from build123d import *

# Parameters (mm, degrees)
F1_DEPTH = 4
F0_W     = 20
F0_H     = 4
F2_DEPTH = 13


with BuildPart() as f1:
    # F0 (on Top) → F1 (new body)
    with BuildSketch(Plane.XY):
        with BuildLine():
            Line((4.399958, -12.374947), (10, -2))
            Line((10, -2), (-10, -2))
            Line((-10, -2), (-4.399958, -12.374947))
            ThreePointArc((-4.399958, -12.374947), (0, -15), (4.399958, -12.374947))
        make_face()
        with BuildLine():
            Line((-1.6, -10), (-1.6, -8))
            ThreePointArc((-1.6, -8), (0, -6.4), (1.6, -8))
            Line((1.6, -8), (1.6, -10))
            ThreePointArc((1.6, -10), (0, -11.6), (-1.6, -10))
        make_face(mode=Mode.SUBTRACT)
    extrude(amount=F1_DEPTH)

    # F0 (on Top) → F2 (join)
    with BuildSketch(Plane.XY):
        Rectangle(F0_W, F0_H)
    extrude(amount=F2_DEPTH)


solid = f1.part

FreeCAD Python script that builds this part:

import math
import FreeCAD as App
import Part
import Sketcher
from FreeCAD import Vector
Q = App.Units.Quantity

doc = App.newDocument("Part")
body = doc.addObject("PartDesign::Body", "Body")

sketch1 = body.newObject("Sketcher::SketchObject", "Sketch")
sketch1.AttachmentSupport = (doc.getObject("XY_Plane"), [""])
sketch1.MapMode = "FlatFace"
sketch1.addGeometry(Part.LineSegment(Vector(4.4, -12.4, 0), Vector(10, -2, 0)), False)
sketch1.addGeometry(Part.LineSegment(Vector(10, -2, 0), Vector(-10, -2, 0)), False)
sketch1.addGeometry(Part.LineSegment(Vector(-10, -2, 0), Vector(-4.4, -12.4, 0)), False)
sketch1.addGeometry(Part.ArcOfCircle(Part.Circle(Vector(0, -10, 0), Vector(0, 0, 1), 5), math.radians(-152), math.radians(-28)), False)
sketch1.addGeometry(Part.ArcOfCircle(Part.Circle(Vector(0, -10, 0), Vector(0, 0, 1), 1.6), math.radians(180), math.radians(360)), False)
sketch1.addGeometry(Part.LineSegment(Vector(-1.6, -10, 0), Vector(-1.6, -8, 0)), False)
sketch1.addGeometry(Part.ArcOfCircle(Part.Circle(Vector(0, -8, 0), Vector(0, 0, 1), 1.6), math.radians(0), math.radians(180)), False)
sketch1.addGeometry(Part.LineSegment(Vector(1.6, -8, 0), Vector(1.6, -10, 0)), False)
sketch1.addConstraint(Sketcher.Constraint("Coincident", 0, 2, 1, 1))
sketch1.addConstraint(Sketcher.Constraint("Coincident", 1, 2, 2, 1))
sketch1.addConstraint(Sketcher.Constraint("Tangent", 2, 2, 3, 1))
sketch1.addConstraint(Sketcher.Constraint("Tangent", 3, 2, 0, 1))
sketch1.addConstraint(Sketcher.Constraint("Tangent", 4, 1, 5, 1))
sketch1.addConstraint(Sketcher.Constraint("Tangent", 5, 2, 6, 2))
sketch1.addConstraint(Sketcher.Constraint("Tangent", 6, 1, 7, 1))
sketch1.addConstraint(Sketcher.Constraint("Tangent", 7, 2, 4, 2))
sketch1.addConstraint(Sketcher.Constraint("Horizontal", 1))
sketch1.addConstraint(Sketcher.Constraint("Vertical", 5))
sketch1.addConstraint(Sketcher.Constraint("Vertical", 7))
sketch1.addConstraint(Sketcher.Constraint("Coincident", 4, 3, 3, 3))
sketch1.addConstraint(Sketcher.Constraint("Symmetric", 2, 2, 3, 2, -2))
sketch1.addConstraint(Sketcher.Constraint("Radius", 3, Q("5.000001 mm")))
sketch1.addConstraint(Sketcher.Constraint("Radius", 4, Q("1.6 mm")))
sketch1.addConstraint(Sketcher.Constraint("DistanceX", 1, 2, 1, 1, Q("20 mm")))
sketch1.addConstraint(Sketcher.Constraint("DistanceY", 5, 1, 5, 2, Q("2 mm")))
sketch1.addConstraint(Sketcher.Constraint("DistanceY", 3, 3, -1, 1, Q("9.999999 mm")))
sketch1.addConstraint(Sketcher.Constraint("DistanceY", 0, 2, -1, 1, Q("2 mm")))
pad1 = body.newObject("PartDesign::Pad", "Pad")
pad1.Profile = sketch1
pad1.Length = 4

sketch2 = body.newObject("Sketcher::SketchObject", "Sketch001")
sketch2.AttachmentSupport = (doc.getObject("XY_Plane"), [""])
sketch2.MapMode = "FlatFace"
sketch2.addGeometry(Part.LineSegment(Vector(-10, 2, 0), Vector(-10, -2, 0)), False)
sketch2.addGeometry(Part.LineSegment(Vector(-10, -2, 0), Vector(10, -2, 0)), False)
sketch2.addGeometry(Part.LineSegment(Vector(10, -2, 0), Vector(10, 2, 0)), False)
sketch2.addGeometry(Part.LineSegment(Vector(10, 2, 0), Vector(-10, 2, 0)), False)
sketch2.addConstraint(Sketcher.Constraint("Coincident", 0, 2, 1, 1))
sketch2.addConstraint(Sketcher.Constraint("Coincident", 1, 2, 2, 1))
sketch2.addConstraint(Sketcher.Constraint("Coincident", 2, 2, 3, 1))
sketch2.addConstraint(Sketcher.Constraint("Coincident", 3, 2, 0, 1))
sketch2.addConstraint(Sketcher.Constraint("Vertical", 0))
sketch2.addConstraint(Sketcher.Constraint("Horizontal", 1))
sketch2.addConstraint(Sketcher.Constraint("Vertical", 2))
sketch2.addConstraint(Sketcher.Constraint("Horizontal", 3))
sketch2.addConstraint(Sketcher.Constraint("Symmetric", 0, 2, 2, 2, -1, 1))
sketch2.addConstraint(Sketcher.Constraint("DistanceX", 1, 1, 1, 2, Q("20 mm")))
sketch2.addConstraint(Sketcher.Constraint("DistanceY", 0, 2, 0, 1, Q("4 mm")))
pad2 = body.newObject("PartDesign::Pad", "Pad001")
pad2.Profile = sketch2
pad2.Length = 13

doc.recompute()
